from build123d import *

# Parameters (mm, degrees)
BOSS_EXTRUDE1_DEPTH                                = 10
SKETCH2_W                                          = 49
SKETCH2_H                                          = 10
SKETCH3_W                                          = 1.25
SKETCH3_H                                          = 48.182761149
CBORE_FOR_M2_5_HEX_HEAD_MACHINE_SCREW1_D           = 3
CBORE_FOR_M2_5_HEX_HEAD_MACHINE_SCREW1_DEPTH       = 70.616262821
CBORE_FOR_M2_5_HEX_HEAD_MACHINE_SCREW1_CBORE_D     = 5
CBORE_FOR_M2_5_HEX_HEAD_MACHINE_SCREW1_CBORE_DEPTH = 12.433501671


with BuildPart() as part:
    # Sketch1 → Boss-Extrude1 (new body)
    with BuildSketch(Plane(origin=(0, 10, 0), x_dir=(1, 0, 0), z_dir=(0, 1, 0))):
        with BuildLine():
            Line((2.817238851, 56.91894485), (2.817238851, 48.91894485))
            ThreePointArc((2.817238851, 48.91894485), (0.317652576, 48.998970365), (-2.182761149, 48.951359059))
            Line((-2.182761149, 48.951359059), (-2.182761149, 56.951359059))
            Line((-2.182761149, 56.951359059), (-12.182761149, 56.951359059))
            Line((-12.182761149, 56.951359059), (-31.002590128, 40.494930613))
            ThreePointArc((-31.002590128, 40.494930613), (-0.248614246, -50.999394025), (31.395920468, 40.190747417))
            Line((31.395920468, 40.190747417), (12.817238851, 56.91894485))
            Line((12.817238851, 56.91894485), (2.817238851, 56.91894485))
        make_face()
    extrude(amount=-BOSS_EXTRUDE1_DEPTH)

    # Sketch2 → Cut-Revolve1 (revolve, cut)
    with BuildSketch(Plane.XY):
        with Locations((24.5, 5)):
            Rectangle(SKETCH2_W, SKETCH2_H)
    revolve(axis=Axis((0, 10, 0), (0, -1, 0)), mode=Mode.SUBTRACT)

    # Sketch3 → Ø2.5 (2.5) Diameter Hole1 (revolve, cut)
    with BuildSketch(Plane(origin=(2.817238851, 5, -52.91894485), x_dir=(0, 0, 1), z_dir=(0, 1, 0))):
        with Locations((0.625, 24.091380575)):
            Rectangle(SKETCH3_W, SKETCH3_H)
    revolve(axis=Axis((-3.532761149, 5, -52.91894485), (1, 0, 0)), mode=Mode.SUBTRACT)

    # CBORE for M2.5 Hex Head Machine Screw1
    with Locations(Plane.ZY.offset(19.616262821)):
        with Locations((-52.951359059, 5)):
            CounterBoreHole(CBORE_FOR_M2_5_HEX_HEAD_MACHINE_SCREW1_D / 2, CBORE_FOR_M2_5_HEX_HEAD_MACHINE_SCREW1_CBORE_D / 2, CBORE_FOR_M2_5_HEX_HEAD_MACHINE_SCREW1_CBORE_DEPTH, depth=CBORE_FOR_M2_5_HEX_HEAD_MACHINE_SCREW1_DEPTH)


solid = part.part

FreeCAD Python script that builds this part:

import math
import FreeCAD as App
import Part
import Sketcher
Q = App.Units.Quantity

doc = App.newDocument("Part")
body = doc.addObject("PartDesign::Body", "Body")

# Sketch on XZ plane
sketch1 = body.newObject("Sketcher::SketchObject", "Sketch")
sketch1.AttachmentSupport = (doc.getObject("XZ_Plane"), [""])
sketch1.MapMode = "FlatFace"
sketch1.AttachmentOffset = App.Placement(App.Vector(0, 0, -10), App.Rotation())
sketch1.addGeometry([
    Part.LineSegment(App.Vector(2.817239, -56.918945, 0), App.Vector(2.817239, -48.918945, 0)),  # 0
    Part.ArcOfCircle(Part.Circle(App.Vector(0, 0, 0), App.Vector(0, 0, 1), 49), math.radians(-92.553151), math.radians(-86.70398)),  # 1
    Part.LineSegment(App.Vector(-2.182761, -48.951359, 0), App.Vector(-2.182761, -56.951359, 0)),  # 2
    Part.LineSegment(App.Vector(-2.182761, -56.951359, 0), App.Vector(-12.182761, -56.951359, 0)),  # 3
    Part.LineSegment(App.Vector(-12.182761, -56.951359, 0), App.Vector(-31.00259, -40.494931, 0)),  # 4
    Part.ArcOfCircle(Part.Circle(App.Vector(0, 0, 0), App.Vector(0, 0, 1), 51), math.radians(-52.004013), math.radians(232.562625)),  # 5
    Part.LineSegment(App.Vector(31.39592, -40.190747, 0), App.Vector(12.817239, -56.918945, 0)),  # 6
    Part.LineSegment(App.Vector(12.817239, -56.918945, 0), App.Vector(2.817239, -56.918945, 0)),  # 7
], False)
sketch1.addConstraint([
    Sketcher.Constraint("Coincident", 0, 2, 1, 2),
    Sketcher.Constraint("Coincident", 1, 1, 2, 1),
    Sketcher.Constraint("Coincident", 2, 2, 3, 1),
    Sketcher.Constraint("Coincident", 3, 2, 4, 1),
    Sketcher.Constraint("Coincident", 4, 2, 5, 2),
    Sketcher.Constraint("Coincident", 5, 1, 6, 1),
    Sketcher.Constraint("Coincident", 6, 2, 7, 1),
    Sketcher.Constraint("Coincident", 7, 2, 0, 1),
    Sketcher.Constraint("Vertical", 0),
    Sketcher.Constraint("Vertical", 2),
    Sketcher.Constraint("Horizontal", 3),
    Sketcher.Constraint("Horizontal", 7),
    Sketcher.Constraint("Coincident", 1, 3, -1, 1),
    Sketcher.Constraint("Coincident", 5, 3, -1, 1),
    Sketcher.Constraint("Equal", 3, 7),
    Sketcher.Constraint("Equal", 0, 2),
    Sketcher.Constraint("Equal", 4, 6),
    Sketcher.Constraint("Radius", 1, Q("49 mm")),
    Sketcher.Constraint("Radius", 5, Q("51 mm")),
    Sketcher.Constraint("DistanceX", 3, 2, 3, 1, Q("10 mm")),
    Sketcher.Constraint("DistanceY", 0, 1, 0, 2, Q("8 mm")),
    Sketcher.Constraint("Distance", 4, Q("25 mm")),
    Sketcher.Constraint("DistanceX", 1, 1, 0, 2, Q("5 mm")),
    Sketcher.Constraint("DistanceX", -1, 1, 0, 2, Q("2.817239 mm")),
])
pad1 = body.newObject("PartDesign::Pad", "Pad")
pad1.Profile = sketch1
pad1.Length = 10

# Sketch on XY plane
sketch2 = body.newObject("Sketcher::SketchObject", "Sketch001")
sketch2.AttachmentSupport = (doc.getObject("XY_Plane"), [""])
sketch2.MapMode = "FlatFace"
sketch2.addGeometry([
    Part.LineSegment(App.Vector(0, 10, 0), App.Vector(0, 0, 0)),
    Part.LineSegment(App.Vector(0, 0, 0), App.Vector(49, 0, 0)),
    Part.LineSegment(App.Vector(49, 0, 0), App.Vector(49, 10, 0)),
    Part.LineSegment(App.Vector(49, 10, 0), App.Vector(0, 10, 0)),
], False)
sketch2.addConstraint([
    Sketcher.Constraint("Coincident", 0, 2, 1, 1),
    Sketcher.Constraint("Coincident", 1, 2, 2, 1),
    Sketcher.Constraint("Coincident", 2, 2, 3, 1),
    Sketcher.Constraint("Coincident", 3, 2, 0, 1),
    Sketcher.Constraint("Vertical", 0),
    Sketcher.Constraint("Horizontal", 1),
    Sketcher.Constraint("Vertical", 2),
    Sketcher.Constraint("Horizontal", 3),
    Sketcher.Constraint("Coincident", 0, 2, -1, 1),
    Sketcher.Constraint("DistanceX", 1, 1, 1, 2, Q("49 mm")),
    Sketcher.Constraint("DistanceY", 0, 2, 0, 1, Q("10 mm")),
])
groove = body.newObject("PartDesign::Groove", "Groove")
groove.Profile = sketch2
groove.ReferenceAxis = (sketch2, ["V_Axis"])
groove.Angle = 360

# Sketch on XZ plane
sketch3 = body.newObject("Sketcher::SketchObject", "Sketch002")
sketch3.AttachmentSupport = (doc.getObject("XZ_Plane"), [""])
sketch3.MapMode = "FlatFace"
sketch3.AttachmentOffset = App.Placement(App.Vector(0, 0, -5), App.Rotation())
sketch3.addGeometry([
    Part.LineSegment(App.Vector(51, -52.918945, 0), App.Vector(2.817239, -52.918945, 0)),
    Part.LineSegment(App.Vector(2.817239, -52.918945, 0), App.Vector(2.817239, -51.668945, 0)),
    Part.LineSegment(App.Vector(2.817239, -51.668945, 0), App.Vector(51, -51.668945, 0)),
    Part.LineSegment(App.Vector(51, -51.668945, 0), App.Vector(51, -52.918945, 0)),
], False)
sketch3.addGeometry(Part.LineSegment(App.Vector(2.817239, -52.918945, 0), App.Vector(51, -52.918945, 0)), True)  # axis
sketch3.addConstraint([
    Sketcher.Constraint("Coincident", 0, 2, 1, 1),
    Sketcher.Constraint("Coincident", 1, 2, 2, 1),
    Sketcher.Constraint("Coincident", 2, 2, 3, 1),
    Sketcher.Constraint("Coincident", 3, 2, 0, 1),
    Sketcher.Constraint("Horizontal", 0),
    Sketcher.Constraint("Vertical", 1),
    Sketcher.Constraint("Horizontal", 2),
    Sketcher.Constraint("Vertical", 3),
    Sketcher.Constraint("Horizontal", 4),
    Sketcher.Constraint("Coincident", 4, 1, 0, 2),
    Sketcher.Constraint("Vertical", 2, 2, 4, 2),
    Sketcher.Constraint("DistanceX", -1, 1, 2, 2, Q("51 mm")),
    Sketcher.Constraint("DistanceY", 1, 1, 1, 2, Q("1.25 mm")),
    Sketcher.Constraint("DistanceX", 0, 2, 0, 1, Q("48.182761 mm")),
    Sketcher.Constraint("DistanceY", 0, 2, -1, 1, Q("52.918945 mm")),
])
groove2 = body.newObject("PartDesign::Groove", "Groove001")
groove2.Profile = sketch3
groove2.ReferenceAxis = (sketch3, ["Axis0"])
groove2.Angle = 360

# Sketch on YZ plane
sketch4 = body.newObject("Sketcher::SketchObject", "Sketch003")
sketch4.AttachmentSupport = (doc.getObject("YZ_Plane"), [""])
sketch4.MapMode = "FlatFace"
sketch4.AttachmentOffset = App.Placement(App.Vector(0, 0, -19.616263), App.Rotation())
sketch4.addGeometry(Part.Circle(App.Vector(5, -52.951359, 0), App.Vector(0, 0, 1), 1.5), False)
sketch4.addConstraint([
    Sketcher.Constraint("Diameter", 0, Q("3 mm")),
    Sketcher.Constraint("DistanceX", -1, 1, 0, 3, Q("5 mm")),
    Sketcher.Constraint("DistanceY", 0, 3, -1, 1, Q("52.951359 mm")),
])
doc.recompute()
hole = body.newObject("PartDesign::Hole", "Hole")
hole.Profile = sketch4
hole.ThreadType = "None"
hole.Diameter = 3
hole.DepthType = "Dimension"
hole.Depth = 70.616263
hole.DrillPoint = "Flat"
hole.HoleCutType = "Counterbore"
hole.HoleCutDiameter = 5
hole.HoleCutDepth = 12.433502
hole.Reversed = True

doc.recompute()
